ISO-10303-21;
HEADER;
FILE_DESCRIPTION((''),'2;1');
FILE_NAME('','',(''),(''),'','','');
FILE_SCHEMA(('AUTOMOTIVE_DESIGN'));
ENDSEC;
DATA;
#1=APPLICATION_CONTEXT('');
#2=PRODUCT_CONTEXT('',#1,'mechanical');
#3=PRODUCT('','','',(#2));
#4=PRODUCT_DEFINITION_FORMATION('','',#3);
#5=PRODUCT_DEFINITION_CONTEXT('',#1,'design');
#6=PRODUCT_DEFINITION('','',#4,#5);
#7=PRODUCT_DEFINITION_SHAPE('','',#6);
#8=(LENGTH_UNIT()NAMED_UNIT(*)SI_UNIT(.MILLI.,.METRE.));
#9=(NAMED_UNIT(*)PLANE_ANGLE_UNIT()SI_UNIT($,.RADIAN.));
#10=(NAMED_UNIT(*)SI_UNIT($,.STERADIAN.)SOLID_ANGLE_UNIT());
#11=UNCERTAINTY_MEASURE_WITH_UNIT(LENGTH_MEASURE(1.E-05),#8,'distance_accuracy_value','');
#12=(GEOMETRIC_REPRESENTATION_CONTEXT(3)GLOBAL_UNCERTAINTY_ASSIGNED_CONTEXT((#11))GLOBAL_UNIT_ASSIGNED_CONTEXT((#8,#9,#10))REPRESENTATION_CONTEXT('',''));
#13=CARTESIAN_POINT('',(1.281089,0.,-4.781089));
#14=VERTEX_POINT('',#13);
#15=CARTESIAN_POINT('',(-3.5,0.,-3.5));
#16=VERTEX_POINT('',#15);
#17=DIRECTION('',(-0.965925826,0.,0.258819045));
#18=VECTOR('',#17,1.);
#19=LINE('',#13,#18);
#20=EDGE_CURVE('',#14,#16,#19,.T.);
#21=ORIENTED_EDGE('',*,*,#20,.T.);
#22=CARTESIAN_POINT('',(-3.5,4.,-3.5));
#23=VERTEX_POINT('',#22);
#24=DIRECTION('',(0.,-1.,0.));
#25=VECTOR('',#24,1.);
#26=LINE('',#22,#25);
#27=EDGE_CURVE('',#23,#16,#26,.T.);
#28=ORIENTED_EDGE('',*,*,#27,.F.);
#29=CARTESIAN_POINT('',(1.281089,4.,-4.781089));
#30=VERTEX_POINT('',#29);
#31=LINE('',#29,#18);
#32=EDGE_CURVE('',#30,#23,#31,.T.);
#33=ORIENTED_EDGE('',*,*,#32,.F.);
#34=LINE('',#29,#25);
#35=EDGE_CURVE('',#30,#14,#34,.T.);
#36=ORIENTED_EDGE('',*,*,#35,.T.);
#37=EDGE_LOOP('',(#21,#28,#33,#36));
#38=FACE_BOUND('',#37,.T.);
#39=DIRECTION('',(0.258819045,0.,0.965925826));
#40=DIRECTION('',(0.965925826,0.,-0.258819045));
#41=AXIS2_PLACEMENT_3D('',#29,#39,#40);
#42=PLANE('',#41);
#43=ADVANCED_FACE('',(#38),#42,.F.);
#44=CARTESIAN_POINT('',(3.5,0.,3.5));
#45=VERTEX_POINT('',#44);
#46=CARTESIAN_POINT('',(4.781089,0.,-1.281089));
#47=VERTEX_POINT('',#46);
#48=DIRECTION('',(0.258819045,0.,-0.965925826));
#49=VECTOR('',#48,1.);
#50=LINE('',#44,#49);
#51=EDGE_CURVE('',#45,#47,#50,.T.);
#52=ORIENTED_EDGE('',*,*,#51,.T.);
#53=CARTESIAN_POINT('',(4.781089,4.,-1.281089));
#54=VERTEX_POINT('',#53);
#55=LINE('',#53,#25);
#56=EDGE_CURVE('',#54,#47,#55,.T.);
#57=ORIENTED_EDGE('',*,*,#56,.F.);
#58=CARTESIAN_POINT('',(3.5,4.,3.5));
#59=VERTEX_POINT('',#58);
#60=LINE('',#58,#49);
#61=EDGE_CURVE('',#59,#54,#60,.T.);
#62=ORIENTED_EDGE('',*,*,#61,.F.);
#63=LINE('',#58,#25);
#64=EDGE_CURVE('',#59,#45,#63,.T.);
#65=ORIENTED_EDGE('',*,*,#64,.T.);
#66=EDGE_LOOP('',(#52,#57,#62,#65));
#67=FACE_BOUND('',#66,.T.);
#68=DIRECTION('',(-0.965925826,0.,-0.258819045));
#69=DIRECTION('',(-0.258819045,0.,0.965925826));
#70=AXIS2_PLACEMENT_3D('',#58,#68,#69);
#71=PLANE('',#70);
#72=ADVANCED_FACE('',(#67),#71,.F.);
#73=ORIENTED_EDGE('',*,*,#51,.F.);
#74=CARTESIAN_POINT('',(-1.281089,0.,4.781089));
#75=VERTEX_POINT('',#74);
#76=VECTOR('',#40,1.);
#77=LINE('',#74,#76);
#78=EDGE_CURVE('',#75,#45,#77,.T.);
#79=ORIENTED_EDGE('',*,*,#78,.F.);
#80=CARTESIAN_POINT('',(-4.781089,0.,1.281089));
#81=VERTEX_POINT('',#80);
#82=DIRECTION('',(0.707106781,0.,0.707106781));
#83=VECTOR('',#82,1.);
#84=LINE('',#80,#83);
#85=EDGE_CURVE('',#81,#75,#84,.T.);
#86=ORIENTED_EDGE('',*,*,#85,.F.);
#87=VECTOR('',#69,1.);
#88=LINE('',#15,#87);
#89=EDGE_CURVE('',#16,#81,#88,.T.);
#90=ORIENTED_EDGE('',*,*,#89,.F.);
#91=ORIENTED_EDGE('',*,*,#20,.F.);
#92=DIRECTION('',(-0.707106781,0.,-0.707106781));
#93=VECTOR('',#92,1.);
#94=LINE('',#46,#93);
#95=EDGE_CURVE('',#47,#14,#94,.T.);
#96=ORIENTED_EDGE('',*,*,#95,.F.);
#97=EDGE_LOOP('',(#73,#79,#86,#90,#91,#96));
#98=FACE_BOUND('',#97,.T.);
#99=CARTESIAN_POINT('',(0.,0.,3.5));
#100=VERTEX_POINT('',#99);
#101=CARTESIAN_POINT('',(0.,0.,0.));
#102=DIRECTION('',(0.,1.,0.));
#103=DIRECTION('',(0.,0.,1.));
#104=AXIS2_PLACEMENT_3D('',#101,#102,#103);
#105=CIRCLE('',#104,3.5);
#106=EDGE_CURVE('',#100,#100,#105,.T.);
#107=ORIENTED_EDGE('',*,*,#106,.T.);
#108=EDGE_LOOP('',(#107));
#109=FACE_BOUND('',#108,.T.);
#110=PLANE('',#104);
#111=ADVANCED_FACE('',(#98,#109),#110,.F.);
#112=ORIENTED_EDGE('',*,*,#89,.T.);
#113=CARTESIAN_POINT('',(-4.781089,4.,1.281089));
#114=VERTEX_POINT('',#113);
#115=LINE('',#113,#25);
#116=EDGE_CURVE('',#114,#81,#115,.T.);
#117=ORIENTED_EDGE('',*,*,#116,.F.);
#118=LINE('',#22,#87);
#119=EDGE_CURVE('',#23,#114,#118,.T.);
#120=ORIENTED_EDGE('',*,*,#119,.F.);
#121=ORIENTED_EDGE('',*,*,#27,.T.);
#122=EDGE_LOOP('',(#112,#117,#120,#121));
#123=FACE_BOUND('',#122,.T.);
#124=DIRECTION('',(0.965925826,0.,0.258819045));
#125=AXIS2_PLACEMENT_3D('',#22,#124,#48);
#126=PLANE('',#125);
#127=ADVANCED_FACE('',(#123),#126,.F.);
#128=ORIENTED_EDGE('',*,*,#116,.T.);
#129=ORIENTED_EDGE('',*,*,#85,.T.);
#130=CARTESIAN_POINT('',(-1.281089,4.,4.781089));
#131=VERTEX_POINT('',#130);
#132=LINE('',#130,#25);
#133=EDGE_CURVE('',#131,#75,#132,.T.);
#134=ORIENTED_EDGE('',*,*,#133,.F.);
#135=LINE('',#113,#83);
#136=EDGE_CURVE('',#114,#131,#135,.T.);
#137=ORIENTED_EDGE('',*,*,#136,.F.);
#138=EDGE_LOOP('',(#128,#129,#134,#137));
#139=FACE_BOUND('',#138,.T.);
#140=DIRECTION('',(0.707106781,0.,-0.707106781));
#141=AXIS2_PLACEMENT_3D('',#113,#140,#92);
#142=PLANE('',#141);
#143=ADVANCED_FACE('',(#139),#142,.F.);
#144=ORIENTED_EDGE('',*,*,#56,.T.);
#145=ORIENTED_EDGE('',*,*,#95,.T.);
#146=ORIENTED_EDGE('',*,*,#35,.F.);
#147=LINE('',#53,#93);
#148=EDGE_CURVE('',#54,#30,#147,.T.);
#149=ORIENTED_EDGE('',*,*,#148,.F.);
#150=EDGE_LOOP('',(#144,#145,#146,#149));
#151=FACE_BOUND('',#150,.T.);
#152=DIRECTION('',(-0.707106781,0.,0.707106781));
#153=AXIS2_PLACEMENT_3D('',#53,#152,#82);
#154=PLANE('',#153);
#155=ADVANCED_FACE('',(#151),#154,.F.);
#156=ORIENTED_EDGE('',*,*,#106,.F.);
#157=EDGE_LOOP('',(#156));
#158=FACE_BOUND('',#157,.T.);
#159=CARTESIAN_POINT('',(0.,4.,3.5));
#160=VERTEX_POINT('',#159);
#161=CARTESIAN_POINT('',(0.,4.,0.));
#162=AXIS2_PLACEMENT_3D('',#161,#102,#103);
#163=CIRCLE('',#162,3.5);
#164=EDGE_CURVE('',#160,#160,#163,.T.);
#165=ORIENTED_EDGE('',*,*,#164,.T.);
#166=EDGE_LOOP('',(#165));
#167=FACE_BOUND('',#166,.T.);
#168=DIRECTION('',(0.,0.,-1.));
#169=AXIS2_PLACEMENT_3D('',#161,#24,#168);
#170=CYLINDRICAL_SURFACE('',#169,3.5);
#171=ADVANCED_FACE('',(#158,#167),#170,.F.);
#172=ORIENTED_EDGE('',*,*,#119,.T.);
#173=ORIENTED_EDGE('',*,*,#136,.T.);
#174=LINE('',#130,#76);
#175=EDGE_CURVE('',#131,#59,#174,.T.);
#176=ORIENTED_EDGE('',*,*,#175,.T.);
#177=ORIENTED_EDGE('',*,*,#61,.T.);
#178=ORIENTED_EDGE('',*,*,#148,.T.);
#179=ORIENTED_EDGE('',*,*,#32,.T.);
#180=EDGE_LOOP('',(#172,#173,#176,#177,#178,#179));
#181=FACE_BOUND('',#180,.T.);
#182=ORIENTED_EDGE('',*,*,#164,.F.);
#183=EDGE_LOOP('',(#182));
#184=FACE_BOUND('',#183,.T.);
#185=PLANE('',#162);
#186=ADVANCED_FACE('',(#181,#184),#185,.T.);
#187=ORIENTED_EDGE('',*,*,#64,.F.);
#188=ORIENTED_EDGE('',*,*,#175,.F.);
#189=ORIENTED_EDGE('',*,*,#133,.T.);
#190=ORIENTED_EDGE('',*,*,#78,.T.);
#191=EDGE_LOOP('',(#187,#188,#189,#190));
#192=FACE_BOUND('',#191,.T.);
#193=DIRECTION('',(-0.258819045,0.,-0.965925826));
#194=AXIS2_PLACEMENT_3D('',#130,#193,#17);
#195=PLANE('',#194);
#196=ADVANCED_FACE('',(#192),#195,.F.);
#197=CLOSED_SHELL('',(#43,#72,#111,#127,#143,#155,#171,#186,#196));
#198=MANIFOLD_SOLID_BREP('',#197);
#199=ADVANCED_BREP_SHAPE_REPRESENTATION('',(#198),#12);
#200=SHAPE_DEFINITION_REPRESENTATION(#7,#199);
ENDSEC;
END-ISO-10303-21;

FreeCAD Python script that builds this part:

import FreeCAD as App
import Part
import Sketcher
Q = App.Units.Quantity


def add_polygon(sketch, points):
    """Adds a closed chain of lines whose ends are joined by coincident constraints."""
    first, n = sketch.GeometryCount, len(points)
    for a, b in zip(points, points[1:] + points[:1]):
        sketch.addGeometry(Part.LineSegment(App.Vector(*a, 0), App.Vector(*b, 0)), False)
    for i in range(n):
        sketch.addConstraint(Sketcher.Constraint("Coincident", first + i, 2, first + (i + 1) % n, 1))

doc = App.newDocument("Part")
body = doc.addObject("PartDesign::Body", "Body")

sketch1 = body.newObject("Sketcher::SketchObject", "Sketch")
sketch1.AttachmentSupport = (doc.getObject("XZ_Plane"), [""])
sketch1.MapMode = "FlatFace"
add_polygon(sketch1, [(3.5, 3.5), (4.781089, -1.281089), (1.281089, -4.781089), (-3.5, -3.5), (-4.781089, 1.281089), (-1.281089, 4.781089)])
sketch1.addGeometry(Part.Circle(App.Vector(0, 0, 0), App.Vector(0, 0, 1), 3.5), False)
sketch1.addConstraint([
    Sketcher.Constraint("Coincident", 6, 3, -1, 1),
    Sketcher.Constraint("Symmetric", 0, 2, 3, 2, -1, 1),
    Sketcher.Constraint("Symmetric", 1, 2, 4, 2, -1, 1),
    Sketcher.Constraint("Symmetric", 2, 2, 5, 2, -1, 1),
    Sketcher.Constraint("Equal", 0, 1),
    Sketcher.Constraint("Equal", 1, 2),
    Sketcher.Constraint("Diameter", 6, 7.0),
    Sketcher.Constraint("Angle", 0, Q("-75 deg")),
    Sketcher.Constraint("Angle", 1, Q("-135 deg")),
    Sketcher.Constraint("Angle", 2, Q("165 deg")),
    Sketcher.Constraint("DistanceX", 2, 2, -1, 1, 3.5),
])
pad1 = body.newObject("PartDesign::Pad", "Pad")
pad1.Profile = sketch1
pad1.Length = 4
pad1.Reversed = True

doc.recompute()
